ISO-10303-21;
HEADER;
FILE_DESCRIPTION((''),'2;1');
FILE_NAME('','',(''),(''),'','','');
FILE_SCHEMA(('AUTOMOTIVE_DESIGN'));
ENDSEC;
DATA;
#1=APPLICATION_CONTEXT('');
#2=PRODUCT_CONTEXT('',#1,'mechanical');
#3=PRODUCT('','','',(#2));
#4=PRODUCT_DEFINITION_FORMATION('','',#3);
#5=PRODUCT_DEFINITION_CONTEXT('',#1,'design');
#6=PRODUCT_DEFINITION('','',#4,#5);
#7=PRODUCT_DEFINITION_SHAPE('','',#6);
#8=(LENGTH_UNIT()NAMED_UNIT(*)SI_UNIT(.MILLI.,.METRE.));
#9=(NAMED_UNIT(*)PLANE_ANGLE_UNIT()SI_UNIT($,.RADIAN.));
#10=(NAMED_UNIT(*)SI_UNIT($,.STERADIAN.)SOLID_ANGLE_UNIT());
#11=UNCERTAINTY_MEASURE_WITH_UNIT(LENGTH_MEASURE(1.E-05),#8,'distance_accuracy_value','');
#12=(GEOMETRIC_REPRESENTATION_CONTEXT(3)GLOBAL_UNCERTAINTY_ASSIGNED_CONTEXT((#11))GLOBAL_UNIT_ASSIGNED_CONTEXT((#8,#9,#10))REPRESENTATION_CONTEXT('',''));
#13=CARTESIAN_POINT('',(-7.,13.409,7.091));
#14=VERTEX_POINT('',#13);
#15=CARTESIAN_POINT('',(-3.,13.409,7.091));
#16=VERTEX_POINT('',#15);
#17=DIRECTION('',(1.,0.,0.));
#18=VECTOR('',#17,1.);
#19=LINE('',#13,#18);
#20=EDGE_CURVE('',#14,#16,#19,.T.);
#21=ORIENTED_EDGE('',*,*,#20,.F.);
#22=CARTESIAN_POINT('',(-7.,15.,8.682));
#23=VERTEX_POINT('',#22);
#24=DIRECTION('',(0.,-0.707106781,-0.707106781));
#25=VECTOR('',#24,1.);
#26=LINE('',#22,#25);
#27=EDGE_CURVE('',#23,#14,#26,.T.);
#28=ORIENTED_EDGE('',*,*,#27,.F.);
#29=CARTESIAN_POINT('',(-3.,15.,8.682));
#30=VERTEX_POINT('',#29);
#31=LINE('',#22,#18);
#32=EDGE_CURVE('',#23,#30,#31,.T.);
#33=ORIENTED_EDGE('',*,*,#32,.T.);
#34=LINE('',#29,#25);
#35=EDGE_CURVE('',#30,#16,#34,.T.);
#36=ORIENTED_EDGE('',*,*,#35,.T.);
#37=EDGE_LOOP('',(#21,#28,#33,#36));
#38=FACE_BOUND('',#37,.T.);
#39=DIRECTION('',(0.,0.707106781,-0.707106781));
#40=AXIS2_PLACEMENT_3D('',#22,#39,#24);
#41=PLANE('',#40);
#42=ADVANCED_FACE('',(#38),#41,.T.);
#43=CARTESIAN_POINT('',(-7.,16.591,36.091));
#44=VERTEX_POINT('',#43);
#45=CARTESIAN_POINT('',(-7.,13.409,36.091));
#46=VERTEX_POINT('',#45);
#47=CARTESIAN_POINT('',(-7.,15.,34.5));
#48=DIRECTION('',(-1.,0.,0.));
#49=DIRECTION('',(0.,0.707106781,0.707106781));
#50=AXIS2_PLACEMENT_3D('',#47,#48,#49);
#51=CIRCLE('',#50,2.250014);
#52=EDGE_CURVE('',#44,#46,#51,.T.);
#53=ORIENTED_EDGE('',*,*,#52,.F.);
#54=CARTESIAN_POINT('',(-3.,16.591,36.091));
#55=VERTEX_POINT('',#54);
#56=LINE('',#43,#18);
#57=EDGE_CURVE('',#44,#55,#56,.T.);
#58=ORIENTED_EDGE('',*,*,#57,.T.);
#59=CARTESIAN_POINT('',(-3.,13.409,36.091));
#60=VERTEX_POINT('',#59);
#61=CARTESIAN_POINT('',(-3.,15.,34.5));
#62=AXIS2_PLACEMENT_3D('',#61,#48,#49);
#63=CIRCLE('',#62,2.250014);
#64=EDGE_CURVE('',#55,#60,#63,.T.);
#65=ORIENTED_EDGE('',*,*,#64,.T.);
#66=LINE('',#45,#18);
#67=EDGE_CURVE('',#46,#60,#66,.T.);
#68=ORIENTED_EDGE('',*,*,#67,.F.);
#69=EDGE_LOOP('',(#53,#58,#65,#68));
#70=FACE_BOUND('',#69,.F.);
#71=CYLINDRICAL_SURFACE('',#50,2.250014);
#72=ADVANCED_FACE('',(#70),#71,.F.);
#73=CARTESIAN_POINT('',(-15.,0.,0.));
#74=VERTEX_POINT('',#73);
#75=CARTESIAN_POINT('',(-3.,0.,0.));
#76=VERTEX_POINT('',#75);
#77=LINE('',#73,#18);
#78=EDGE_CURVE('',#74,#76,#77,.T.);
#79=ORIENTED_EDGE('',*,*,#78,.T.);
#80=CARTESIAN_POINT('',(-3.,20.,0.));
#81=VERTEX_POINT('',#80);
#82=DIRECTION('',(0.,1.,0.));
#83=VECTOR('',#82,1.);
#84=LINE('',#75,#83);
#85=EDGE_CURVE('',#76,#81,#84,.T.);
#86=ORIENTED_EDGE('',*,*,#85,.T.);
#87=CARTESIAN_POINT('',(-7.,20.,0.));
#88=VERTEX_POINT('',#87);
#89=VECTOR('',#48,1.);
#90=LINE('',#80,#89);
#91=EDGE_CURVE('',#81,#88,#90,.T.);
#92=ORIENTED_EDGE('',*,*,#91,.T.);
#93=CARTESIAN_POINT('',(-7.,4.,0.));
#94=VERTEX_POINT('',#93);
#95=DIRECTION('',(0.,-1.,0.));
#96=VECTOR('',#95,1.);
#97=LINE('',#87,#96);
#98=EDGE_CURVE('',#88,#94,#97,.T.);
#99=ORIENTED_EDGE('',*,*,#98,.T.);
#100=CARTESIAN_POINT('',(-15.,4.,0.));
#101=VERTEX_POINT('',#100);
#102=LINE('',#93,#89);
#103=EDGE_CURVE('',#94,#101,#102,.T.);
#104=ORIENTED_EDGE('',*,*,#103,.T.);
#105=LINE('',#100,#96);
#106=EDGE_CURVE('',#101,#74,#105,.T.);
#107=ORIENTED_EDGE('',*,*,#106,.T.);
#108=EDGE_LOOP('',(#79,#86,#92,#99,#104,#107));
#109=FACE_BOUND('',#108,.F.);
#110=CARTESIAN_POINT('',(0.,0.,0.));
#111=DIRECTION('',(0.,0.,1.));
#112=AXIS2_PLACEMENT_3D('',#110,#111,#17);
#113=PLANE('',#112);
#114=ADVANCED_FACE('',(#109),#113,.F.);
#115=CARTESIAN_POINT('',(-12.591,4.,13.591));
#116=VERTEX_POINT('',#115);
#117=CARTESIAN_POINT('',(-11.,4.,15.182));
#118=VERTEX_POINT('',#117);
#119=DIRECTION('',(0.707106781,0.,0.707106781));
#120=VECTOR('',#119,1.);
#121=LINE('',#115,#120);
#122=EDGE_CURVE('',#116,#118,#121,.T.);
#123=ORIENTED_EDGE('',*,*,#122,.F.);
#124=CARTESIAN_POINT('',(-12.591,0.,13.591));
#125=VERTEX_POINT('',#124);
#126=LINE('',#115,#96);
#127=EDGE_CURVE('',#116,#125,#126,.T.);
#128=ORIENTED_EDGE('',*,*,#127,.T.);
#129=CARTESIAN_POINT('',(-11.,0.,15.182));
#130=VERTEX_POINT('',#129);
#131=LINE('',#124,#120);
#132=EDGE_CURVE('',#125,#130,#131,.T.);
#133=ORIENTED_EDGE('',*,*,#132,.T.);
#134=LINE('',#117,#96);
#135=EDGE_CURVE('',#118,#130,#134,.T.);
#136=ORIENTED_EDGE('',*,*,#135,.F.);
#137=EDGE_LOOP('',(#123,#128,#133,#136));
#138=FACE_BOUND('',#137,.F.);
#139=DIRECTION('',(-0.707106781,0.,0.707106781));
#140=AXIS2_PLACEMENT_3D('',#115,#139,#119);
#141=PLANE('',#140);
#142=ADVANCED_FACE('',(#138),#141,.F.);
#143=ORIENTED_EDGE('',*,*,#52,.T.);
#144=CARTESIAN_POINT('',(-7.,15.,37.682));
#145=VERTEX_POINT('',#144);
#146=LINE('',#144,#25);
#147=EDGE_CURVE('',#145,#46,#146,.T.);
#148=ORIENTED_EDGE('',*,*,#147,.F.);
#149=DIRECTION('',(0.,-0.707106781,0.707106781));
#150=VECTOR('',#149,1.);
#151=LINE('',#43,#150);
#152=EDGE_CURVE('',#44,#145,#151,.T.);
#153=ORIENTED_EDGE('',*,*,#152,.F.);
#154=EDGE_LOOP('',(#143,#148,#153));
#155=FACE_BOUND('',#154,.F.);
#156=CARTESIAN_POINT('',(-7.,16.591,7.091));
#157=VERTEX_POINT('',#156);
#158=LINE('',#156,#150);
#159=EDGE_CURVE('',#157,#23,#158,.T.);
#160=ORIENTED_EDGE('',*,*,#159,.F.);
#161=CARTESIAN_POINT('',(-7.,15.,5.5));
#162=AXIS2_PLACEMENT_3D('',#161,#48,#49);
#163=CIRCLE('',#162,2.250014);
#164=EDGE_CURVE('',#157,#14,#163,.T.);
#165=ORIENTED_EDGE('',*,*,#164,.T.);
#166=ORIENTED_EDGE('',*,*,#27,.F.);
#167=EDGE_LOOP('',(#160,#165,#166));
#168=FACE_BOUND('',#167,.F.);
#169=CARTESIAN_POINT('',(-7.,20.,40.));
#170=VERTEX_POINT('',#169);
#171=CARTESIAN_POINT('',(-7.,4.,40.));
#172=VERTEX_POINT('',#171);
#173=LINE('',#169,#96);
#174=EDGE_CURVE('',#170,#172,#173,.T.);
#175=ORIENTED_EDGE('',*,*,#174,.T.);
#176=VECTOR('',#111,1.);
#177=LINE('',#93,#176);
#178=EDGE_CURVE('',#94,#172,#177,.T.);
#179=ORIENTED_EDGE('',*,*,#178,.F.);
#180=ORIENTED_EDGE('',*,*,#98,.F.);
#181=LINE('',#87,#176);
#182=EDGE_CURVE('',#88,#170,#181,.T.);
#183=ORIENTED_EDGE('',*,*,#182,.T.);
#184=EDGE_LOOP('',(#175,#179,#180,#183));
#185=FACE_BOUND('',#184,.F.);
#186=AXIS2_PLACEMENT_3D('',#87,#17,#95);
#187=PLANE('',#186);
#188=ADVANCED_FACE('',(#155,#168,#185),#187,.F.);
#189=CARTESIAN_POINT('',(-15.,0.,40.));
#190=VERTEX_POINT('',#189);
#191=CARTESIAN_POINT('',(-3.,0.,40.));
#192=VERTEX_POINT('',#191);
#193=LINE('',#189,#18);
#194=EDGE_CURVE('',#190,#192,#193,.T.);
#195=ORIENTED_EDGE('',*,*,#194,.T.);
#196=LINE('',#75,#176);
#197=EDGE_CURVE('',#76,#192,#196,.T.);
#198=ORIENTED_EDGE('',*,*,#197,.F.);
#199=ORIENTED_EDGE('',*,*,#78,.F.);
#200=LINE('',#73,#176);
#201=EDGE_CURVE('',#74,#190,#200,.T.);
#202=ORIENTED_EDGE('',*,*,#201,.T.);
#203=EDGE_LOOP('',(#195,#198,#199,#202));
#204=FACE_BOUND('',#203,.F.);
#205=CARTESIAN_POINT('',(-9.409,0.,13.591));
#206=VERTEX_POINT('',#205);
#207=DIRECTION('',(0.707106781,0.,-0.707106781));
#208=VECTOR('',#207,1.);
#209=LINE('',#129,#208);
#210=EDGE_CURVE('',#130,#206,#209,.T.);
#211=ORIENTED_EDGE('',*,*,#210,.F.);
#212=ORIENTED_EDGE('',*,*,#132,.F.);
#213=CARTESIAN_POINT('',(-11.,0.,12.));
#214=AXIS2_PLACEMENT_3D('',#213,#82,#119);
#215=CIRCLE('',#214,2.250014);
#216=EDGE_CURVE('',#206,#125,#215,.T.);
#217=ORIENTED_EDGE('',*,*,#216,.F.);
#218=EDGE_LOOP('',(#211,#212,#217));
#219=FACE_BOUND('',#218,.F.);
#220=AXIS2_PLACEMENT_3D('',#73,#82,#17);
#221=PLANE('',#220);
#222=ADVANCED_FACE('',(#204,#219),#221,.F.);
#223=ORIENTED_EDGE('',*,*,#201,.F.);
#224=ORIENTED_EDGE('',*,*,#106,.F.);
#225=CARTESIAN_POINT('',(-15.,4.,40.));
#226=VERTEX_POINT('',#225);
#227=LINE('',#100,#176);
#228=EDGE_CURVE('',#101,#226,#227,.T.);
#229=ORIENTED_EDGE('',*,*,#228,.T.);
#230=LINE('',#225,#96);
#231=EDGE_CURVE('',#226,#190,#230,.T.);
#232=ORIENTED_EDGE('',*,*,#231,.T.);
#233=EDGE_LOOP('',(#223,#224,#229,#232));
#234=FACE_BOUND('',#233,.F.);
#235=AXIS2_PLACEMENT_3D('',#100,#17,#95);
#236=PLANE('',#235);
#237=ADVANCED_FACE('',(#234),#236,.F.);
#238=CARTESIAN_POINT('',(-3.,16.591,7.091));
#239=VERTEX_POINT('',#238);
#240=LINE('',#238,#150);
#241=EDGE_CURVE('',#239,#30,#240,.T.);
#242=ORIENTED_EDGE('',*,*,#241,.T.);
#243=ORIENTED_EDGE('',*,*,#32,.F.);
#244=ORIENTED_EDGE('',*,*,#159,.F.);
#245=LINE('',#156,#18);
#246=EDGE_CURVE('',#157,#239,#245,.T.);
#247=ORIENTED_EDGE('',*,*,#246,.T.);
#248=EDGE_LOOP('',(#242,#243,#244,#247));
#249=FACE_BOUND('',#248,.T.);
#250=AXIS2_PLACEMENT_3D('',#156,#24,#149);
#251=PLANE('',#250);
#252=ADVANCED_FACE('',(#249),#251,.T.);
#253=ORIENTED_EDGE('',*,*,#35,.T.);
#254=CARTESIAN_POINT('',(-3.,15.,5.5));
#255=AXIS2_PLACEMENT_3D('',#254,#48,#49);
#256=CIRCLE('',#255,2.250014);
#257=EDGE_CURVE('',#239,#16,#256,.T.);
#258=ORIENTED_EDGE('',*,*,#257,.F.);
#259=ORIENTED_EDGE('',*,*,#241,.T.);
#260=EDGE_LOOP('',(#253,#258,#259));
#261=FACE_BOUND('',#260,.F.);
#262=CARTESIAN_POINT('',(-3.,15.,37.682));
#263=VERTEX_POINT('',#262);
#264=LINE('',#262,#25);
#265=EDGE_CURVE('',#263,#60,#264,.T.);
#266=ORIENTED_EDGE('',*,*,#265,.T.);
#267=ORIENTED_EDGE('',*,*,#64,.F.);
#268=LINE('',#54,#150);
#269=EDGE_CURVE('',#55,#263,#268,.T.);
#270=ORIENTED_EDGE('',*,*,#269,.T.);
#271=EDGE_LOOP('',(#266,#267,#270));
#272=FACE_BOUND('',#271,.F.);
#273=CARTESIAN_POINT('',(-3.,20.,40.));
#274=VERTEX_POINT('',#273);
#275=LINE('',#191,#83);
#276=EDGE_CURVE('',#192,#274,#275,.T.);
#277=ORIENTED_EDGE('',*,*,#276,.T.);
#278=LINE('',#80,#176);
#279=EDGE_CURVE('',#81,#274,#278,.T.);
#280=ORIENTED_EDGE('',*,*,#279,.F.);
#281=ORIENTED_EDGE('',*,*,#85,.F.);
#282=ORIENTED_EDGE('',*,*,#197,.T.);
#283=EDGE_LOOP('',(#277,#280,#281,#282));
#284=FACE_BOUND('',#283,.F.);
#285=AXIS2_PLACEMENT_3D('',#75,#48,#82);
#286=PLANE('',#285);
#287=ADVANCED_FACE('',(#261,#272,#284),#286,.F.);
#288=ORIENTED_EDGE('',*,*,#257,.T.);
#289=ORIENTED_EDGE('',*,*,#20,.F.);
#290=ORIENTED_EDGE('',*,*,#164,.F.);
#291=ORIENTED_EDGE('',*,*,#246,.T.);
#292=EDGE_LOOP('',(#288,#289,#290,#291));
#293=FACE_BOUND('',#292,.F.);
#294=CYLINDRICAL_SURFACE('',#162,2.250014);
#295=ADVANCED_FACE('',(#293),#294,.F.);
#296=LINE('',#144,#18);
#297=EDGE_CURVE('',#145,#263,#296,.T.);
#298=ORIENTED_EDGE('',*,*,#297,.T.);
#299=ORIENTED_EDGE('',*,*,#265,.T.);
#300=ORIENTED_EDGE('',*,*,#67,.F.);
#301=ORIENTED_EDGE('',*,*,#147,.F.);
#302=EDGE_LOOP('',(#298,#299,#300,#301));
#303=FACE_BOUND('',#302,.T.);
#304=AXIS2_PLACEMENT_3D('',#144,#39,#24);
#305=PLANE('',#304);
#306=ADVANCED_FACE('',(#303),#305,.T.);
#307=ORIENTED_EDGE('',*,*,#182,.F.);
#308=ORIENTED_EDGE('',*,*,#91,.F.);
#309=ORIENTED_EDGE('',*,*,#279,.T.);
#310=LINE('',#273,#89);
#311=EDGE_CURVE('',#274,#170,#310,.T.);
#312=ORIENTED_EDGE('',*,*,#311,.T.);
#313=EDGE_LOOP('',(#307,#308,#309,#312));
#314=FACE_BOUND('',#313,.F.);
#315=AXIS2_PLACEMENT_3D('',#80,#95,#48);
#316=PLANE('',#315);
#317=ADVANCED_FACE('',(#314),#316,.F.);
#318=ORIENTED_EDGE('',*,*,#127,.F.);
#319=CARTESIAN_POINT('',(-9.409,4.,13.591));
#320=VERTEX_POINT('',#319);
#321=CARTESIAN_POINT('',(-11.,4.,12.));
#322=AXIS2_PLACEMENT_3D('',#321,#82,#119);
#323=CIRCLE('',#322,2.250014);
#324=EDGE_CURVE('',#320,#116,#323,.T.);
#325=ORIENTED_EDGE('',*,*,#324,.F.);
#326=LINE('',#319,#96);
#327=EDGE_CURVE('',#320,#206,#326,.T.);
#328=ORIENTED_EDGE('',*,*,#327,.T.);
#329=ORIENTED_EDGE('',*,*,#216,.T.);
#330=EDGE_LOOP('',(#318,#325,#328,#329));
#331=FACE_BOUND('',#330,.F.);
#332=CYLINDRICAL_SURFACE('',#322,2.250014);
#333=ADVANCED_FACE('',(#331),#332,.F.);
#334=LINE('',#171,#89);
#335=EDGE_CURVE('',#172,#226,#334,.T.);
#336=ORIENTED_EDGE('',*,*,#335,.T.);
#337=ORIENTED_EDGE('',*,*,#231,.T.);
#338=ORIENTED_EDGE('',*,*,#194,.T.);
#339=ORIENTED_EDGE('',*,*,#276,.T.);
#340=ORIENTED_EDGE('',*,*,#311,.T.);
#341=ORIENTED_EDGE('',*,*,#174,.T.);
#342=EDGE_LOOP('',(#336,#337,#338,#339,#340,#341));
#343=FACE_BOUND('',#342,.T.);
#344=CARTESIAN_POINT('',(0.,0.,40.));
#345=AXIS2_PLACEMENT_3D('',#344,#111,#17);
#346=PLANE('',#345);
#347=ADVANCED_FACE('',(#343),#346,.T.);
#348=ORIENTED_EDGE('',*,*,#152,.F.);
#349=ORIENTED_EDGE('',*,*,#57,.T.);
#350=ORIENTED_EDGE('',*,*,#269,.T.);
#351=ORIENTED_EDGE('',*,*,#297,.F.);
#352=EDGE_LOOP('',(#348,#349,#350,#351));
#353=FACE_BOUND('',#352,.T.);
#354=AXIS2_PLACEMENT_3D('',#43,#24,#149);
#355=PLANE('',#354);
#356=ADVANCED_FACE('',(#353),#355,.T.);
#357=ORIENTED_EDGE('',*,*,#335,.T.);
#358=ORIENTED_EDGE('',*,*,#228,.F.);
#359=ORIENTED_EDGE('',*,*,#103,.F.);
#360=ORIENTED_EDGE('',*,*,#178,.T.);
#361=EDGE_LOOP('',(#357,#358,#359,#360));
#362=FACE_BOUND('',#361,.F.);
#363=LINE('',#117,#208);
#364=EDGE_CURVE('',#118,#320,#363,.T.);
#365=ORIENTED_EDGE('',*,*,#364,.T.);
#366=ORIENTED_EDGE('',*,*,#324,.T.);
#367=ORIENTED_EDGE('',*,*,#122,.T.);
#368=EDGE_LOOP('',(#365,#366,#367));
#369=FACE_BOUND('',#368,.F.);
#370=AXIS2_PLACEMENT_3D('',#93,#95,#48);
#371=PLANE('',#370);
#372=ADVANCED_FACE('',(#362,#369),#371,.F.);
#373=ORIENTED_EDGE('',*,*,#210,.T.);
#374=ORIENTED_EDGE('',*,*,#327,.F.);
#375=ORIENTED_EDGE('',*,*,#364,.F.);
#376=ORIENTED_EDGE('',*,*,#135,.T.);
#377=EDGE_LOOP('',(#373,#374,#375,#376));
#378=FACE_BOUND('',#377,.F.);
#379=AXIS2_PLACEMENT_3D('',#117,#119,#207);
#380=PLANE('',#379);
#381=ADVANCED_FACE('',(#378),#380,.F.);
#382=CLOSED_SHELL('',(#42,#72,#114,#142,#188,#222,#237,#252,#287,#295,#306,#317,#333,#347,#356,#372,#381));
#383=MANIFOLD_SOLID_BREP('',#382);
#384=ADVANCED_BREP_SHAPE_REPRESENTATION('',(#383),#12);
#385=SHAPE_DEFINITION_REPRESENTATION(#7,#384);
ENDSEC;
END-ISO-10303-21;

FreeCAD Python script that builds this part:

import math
import FreeCAD as App
import Part
import Sketcher

V = App.Vector
Q = App.Units.Quantity


def add_polygon(sketch, points):
    """Adds a closed chain of lines whose ends are joined by coincident constraints."""
    first, n = sketch.GeometryCount, len(points)
    for a, b in zip(points, points[1:] + points[:1]):
        sketch.addGeometry(Part.LineSegment(App.Vector(*a, 0), App.Vector(*b, 0)), False)
    for i in range(n):
        sketch.addConstraint(Sketcher.Constraint("Coincident", first + i, 2, first + (i + 1) % n, 1))

doc = App.newDocument("Part")
body = doc.addObject("PartDesign::Body", "Body")

sketch1 = body.newObject("Sketcher::SketchObject", "Sketch")
sketch1.AttachmentSupport = (doc.getObject("XY_Plane"), [""])
sketch1.MapMode = "FlatFace"
add_polygon(sketch1, [(-15, 0), (-3, 0), (-3, 20), (-7, 20), (-7, 4), (-15, 4)])
sketch1.addConstraint(Sketcher.Constraint("Horizontal", 0))
sketch1.addConstraint(Sketcher.Constraint("Vertical", 1))
sketch1.addConstraint(Sketcher.Constraint("Horizontal", 2))
sketch1.addConstraint(Sketcher.Constraint("Vertical", 3))
sketch1.addConstraint(Sketcher.Constraint("Horizontal", 4))
sketch1.addConstraint(Sketcher.Constraint("Vertical", 5))
sketch1.addConstraint(Sketcher.Constraint("PointOnObject", 0, 2, -1))
sketch1.addConstraint(Sketcher.Constraint("Equal", 2, 5))
sketch1.addConstraint(Sketcher.Constraint("DistanceX", 0, 1, 0, 2, Q("12 mm")))
sketch1.addConstraint(Sketcher.Constraint("DistanceX", 2, 2, 2, 1, Q("4 mm")))
sketch1.addConstraint(Sketcher.Constraint("DistanceY", 1, 1, 1, 2, Q("20 mm")))
sketch1.addConstraint(Sketcher.Constraint("DistanceX", 0, 2, -1, 1, Q("3 mm")))
pad1 = body.newObject("PartDesign::Pad", "Pad")
pad1.Profile = sketch1
pad1.Length = 40

sketch2 = body.newObject("Sketcher::SketchObject", "Sketch001")
sketch2.AttachmentSupport = (doc.getObject("XZ_Plane"), [""])
sketch2.MapMode = "FlatFace"
sketch2.AttachmentOffset = App.Placement(V(0, 0, -4), App.Rotation())
sketch2.addGeometry(Part.LineSegment(V(-11, 15.182, 0), V(-9.409, 13.591, 0)), False)
sketch2.addGeometry(Part.ArcOfCircle(Part.Circle(V(-11, 12, 0), V(0, 0, 1), 2.250014), math.radians(135), math.radians(405)), False)
sketch2.addGeometry(Part.LineSegment(V(-12.591, 13.591, 0), V(-11, 15.182, 0)), False)
sketch2.addConstraint(Sketcher.Constraint("Tangent", 0, 2, 1, 2))
sketch2.addConstraint(Sketcher.Constraint("Tangent", 1, 1, 2, 1))
sketch2.addConstraint(Sketcher.Constraint("Coincident", 2, 2, 0, 1))
sketch2.addConstraint(Sketcher.Constraint("Perpendicular", 0, 2))
sketch2.addConstraint(Sketcher.Constraint("Horizontal", 0, 2, 1, 1))
sketch2.addConstraint(Sketcher.Constraint("Radius", 1, Q("2.25 mm")))
sketch2.addConstraint(Sketcher.Constraint("DistanceX", 1, 3, -1, 1, Q("11 mm")))
sketch2.addConstraint(Sketcher.Constraint("DistanceY", -1, 1, 1, 3, Q("12 mm")))
pocket1 = body.newObject("PartDesign::Pocket", "Pocket")
pocket1.Profile = sketch2
pocket1.Length = 4
pocket1.Reversed = True

sketch3 = body.newObject("Sketcher::SketchObject", "Sketch002")
sketch3.AttachmentSupport = (doc.getObject("YZ_Plane"), [""])
sketch3.MapMode = "FlatFace"
sketch3.AttachmentOffset = App.Placement(V(0, 0, -7), App.Rotation())
sketch3.addGeometry(Part.LineSegment(V(15, 8.682, 0), V(16.591, 7.091, 0)), False)
sketch3.addGeometry(Part.ArcOfCircle(Part.Circle(V(15, 5.5, 0), V(0, 0, 1), 2.250014), math.radians(135), math.radians(405)), False)
sketch3.addGeometry(Part.LineSegment(V(13.409, 7.091, 0), V(15, 8.682, 0)), False)
sketch3.addConstraint(Sketcher.Constraint("Tangent", 0, 2, 1, 2))
sketch3.addConstraint(Sketcher.Constraint("Tangent", 1, 1, 2, 1))
sketch3.addConstraint(Sketcher.Constraint("Coincident", 2, 2, 0, 1))
sketch3.addConstraint(Sketcher.Constraint("Perpendicular", 0, 2))
sketch3.addConstraint(Sketcher.Constraint("Horizontal", 0, 2, 1, 1))
sketch3.addConstraint(Sketcher.Constraint("Radius", 1, Q("2.25 mm")))
sketch3.addConstraint(Sketcher.Constraint("DistanceX", -1, 1, 1, 3, Q("15 mm")))
sketch3.addConstraint(Sketcher.Constraint("DistanceY", -1, 1, 1, 3, Q("5.5 mm")))
pocket2 = body.newObject("PartDesign::Pocket", "Pocket001")
pocket2.Profile = sketch3
pocket2.Length = 4
pocket2.Reversed = True

sketch4 = body.newObject("Sketcher::SketchObject", "Sketch003")
sketch4.AttachmentSupport = (doc.getObject("YZ_Plane"), [""])
sketch4.MapMode = "FlatFace"
sketch4.AttachmentOffset = App.Placement(V(0, 0, -7), App.Rotation())
sketch4.addGeometry(Part.LineSegment(V(15, 37.682, 0), V(16.591, 36.091, 0)), False)
sketch4.addGeometry(Part.ArcOfCircle(Part.Circle(V(15, 34.5, 0), V(0, 0, 1), 2.250014), math.radians(135), math.radians(405)), False)
sketch4.addGeometry(Part.LineSegment(V(13.409, 36.091, 0), V(15, 37.682, 0)), False)
sketch4.addConstraint(Sketcher.Constraint("Tangent", 0, 2, 1, 2))
sketch4.addConstraint(Sketcher.Constraint("Tangent", 1, 1, 2, 1))
sketch4.addConstraint(Sketcher.Constraint("Coincident", 2, 2, 0, 1))
sketch4.addConstraint(Sketcher.Constraint("Perpendicular", 0, 2))
sketch4.addConstraint(Sketcher.Constraint("Horizontal", 0, 2, 1, 1))
sketch4.addConstraint(Sketcher.Constraint("Radius", 1, Q("2.25 mm")))
sketch4.addConstraint(Sketcher.Constraint("DistanceX", -1, 1, 1, 3, Q("15 mm")))
sketch4.addConstraint(Sketcher.Constraint("DistanceY", -1, 1, 1, 3, Q("34.5 mm")))
pocket3 = body.newObject("PartDesign::Pocket", "Pocket002")
pocket3.Profile = sketch4
pocket3.Length = 4
pocket3.Reversed = True

doc.recompute()
